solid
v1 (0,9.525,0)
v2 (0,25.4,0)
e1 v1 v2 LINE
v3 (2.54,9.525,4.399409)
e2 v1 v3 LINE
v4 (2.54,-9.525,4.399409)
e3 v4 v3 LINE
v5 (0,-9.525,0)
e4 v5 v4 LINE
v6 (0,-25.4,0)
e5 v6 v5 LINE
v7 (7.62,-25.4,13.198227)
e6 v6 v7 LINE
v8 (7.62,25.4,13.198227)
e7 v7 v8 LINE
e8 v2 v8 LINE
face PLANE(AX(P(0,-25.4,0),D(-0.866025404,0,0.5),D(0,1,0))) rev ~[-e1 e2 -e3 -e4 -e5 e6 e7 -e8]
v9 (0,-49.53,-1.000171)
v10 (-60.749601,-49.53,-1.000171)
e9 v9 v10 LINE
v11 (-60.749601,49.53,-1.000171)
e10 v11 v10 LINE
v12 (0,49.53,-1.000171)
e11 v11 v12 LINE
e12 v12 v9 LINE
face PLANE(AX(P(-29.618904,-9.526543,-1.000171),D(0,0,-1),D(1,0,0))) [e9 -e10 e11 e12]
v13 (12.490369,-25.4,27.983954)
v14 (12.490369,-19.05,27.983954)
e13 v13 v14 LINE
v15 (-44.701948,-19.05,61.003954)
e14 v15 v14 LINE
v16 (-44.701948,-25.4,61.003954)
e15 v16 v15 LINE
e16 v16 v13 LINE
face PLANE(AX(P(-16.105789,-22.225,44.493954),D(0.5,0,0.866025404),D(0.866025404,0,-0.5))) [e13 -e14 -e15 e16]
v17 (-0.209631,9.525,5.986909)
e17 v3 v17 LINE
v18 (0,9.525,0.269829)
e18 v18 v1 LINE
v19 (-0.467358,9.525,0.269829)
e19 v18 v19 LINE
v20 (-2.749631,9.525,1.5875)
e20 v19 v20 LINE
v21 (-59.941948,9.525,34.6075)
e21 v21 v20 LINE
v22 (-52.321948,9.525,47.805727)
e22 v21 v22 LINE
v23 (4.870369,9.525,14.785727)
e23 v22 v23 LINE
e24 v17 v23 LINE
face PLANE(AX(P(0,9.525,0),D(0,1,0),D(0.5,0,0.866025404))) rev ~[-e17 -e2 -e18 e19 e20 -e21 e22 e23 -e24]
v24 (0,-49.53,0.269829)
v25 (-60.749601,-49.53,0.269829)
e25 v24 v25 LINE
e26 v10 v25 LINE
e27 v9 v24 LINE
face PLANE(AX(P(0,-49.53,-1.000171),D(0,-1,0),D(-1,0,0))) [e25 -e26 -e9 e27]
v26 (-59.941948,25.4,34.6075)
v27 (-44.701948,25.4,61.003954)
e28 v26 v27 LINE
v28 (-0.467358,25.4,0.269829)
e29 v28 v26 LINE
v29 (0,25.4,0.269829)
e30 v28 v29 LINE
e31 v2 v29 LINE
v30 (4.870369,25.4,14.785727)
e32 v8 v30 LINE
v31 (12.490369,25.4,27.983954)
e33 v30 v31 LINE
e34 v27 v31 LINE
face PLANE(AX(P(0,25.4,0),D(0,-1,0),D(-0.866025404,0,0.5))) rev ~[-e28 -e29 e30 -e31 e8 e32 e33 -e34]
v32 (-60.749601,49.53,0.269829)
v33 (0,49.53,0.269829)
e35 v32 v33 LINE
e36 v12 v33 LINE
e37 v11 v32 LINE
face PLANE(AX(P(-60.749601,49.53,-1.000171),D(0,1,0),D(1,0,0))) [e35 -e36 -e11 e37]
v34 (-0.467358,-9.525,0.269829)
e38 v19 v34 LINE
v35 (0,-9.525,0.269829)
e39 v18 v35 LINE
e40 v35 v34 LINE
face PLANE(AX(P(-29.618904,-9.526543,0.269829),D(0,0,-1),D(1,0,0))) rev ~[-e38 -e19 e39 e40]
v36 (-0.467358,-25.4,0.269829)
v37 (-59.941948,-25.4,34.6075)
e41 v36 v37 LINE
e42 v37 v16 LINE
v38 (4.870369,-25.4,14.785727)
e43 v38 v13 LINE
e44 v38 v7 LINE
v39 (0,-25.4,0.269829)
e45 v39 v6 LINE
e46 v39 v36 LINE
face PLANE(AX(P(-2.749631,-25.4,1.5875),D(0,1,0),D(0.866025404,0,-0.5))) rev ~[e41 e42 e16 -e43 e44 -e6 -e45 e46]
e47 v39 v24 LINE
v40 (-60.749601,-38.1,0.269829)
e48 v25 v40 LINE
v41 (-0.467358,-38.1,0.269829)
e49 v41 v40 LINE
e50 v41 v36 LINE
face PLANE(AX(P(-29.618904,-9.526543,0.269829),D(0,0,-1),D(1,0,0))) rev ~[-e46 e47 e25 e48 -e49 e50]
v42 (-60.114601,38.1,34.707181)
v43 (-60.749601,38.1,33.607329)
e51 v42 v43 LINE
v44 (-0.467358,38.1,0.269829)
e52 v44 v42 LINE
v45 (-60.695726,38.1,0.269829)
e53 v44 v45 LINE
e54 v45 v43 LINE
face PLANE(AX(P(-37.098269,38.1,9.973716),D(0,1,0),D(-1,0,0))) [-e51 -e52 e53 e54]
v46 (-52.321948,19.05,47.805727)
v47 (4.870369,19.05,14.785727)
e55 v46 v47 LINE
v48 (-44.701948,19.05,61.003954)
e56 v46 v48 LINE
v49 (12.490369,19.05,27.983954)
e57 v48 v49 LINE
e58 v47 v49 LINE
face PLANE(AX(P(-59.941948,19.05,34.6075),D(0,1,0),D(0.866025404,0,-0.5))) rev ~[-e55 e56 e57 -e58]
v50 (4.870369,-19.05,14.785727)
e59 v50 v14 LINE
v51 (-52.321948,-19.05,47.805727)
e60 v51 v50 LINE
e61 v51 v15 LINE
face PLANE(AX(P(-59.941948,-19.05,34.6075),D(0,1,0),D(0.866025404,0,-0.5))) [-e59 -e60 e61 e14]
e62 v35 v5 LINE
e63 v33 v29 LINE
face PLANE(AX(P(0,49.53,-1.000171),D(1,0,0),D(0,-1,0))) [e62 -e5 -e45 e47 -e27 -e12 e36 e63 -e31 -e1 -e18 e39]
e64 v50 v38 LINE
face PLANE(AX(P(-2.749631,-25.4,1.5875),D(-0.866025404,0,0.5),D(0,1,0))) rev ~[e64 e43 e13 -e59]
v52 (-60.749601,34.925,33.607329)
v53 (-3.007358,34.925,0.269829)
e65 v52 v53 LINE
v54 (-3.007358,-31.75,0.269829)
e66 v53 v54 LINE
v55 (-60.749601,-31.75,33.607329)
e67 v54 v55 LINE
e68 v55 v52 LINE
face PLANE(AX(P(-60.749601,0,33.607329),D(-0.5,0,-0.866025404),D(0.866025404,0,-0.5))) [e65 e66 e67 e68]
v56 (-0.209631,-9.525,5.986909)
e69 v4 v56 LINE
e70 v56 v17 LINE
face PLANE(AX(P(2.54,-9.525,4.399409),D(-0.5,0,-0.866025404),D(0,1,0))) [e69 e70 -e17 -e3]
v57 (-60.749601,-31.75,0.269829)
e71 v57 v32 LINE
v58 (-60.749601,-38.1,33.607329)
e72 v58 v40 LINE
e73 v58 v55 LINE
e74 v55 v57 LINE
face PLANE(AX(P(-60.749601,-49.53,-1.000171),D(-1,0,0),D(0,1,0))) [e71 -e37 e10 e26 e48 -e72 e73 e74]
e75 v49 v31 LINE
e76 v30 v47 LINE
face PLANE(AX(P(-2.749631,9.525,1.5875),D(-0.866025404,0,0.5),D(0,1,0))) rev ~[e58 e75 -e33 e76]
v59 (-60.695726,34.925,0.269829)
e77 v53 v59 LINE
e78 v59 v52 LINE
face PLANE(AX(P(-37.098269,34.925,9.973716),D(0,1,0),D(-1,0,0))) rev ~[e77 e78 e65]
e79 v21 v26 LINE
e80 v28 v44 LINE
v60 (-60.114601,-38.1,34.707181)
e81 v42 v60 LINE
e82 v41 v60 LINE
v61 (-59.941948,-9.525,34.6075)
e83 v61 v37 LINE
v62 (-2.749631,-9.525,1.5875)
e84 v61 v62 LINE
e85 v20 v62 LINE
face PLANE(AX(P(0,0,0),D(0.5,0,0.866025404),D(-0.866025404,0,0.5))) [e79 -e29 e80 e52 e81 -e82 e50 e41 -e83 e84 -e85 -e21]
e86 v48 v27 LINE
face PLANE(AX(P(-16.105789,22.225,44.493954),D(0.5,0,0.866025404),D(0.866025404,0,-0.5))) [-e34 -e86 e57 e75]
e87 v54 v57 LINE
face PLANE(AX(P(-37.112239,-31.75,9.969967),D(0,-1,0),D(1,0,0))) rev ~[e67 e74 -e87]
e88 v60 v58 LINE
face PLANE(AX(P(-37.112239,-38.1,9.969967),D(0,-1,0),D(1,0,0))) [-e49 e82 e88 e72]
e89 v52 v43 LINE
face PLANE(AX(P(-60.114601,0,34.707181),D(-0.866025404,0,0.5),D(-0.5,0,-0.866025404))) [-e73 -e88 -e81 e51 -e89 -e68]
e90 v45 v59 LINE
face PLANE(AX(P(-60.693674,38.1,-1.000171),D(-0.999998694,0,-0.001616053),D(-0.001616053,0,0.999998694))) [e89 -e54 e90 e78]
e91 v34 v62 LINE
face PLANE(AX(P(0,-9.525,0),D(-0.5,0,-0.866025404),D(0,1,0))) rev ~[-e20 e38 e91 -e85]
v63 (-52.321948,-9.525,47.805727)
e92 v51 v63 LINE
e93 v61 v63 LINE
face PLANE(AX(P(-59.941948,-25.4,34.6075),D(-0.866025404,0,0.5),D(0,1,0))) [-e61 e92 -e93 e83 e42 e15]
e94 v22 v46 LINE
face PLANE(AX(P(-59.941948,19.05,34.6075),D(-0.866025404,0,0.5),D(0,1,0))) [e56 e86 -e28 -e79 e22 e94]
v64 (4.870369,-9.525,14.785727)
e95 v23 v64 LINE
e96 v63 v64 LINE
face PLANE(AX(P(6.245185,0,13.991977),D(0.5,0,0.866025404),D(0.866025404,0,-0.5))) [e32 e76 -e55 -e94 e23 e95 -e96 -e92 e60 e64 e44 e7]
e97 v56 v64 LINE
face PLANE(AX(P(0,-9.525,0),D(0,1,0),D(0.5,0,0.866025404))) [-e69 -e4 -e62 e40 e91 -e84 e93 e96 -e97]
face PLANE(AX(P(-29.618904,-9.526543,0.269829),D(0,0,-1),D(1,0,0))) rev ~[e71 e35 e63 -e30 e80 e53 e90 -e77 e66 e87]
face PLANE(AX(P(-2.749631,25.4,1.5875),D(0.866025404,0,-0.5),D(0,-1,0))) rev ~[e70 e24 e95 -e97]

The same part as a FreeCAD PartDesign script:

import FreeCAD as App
import Part
import Sketcher
from FreeCAD import Vector
Q = App.Units.Quantity

doc = App.newDocument("Part")
body = doc.addObject("PartDesign::Body", "Body")

sketch1 = doc.addObject("Sketcher::SketchObject", "Sketch")
body.addObject(sketch1)
sketch1.AttachmentSupport = (doc.XZ_Plane, [""])
sketch1.MapMode = "FlatFace"
sketch1.addGeometry([
    Part.LineSegment(Vector(-0.8, -1, 0), Vector(0, 0, 0)),
    Part.LineSegment(Vector(0, 0, 0), Vector(-60.1, 34.7, 0)),
    Part.LineSegment(Vector(-60.1, 34.7, 0), Vector(-60.7, 33.6, 0)),
    Part.LineSegment(Vector(-60.7, 33.6, 0), Vector(-0.8, -1, 0)),
], False)
sketch1.addConstraint([
    Sketcher.Constraint("Coincident", 0, 2, 1, 1),
    Sketcher.Constraint("Coincident", 1, 2, 2, 1),
    Sketcher.Constraint("Coincident", 2, 2, 3, 1),
    Sketcher.Constraint("Coincident", 3, 2, 0, 1),
    Sketcher.Constraint("Coincident", 0, 2, -1, 1),
    Sketcher.Constraint("Perpendicular", 1, 2),
    Sketcher.Constraint("Perpendicular", 2, 3),
    Sketcher.Constraint("Angle", 1, Q("150 deg")),
    Sketcher.Constraint("Distance", 2, Q("0.05 in")),
    Sketcher.Constraint("Distance", 3, Q("2.725 in")),
    Sketcher.Constraint("DistanceX", 1, 2, -1, 1, Q("60.114601 mm")),
])
pad1 = doc.addObject("PartDesign::Pad", "Pad")
body.addObject(pad1)
pad1.Profile = sketch1
pad1.Length = Q("3 in")
pad1.Midplane = True

sketch2 = doc.addObject("Sketcher::SketchObject", "Sketch001")
body.addObject(sketch2)
sketch2.Placement = App.Placement(Vector(0, 0, 0), App.Rotation(Vector(0.866025404, 0, -0.5), Vector(0, 1, 0), Vector(0.5, 0, 0.866025404), "ZXY"))
sketch2.addGeometry([
    Part.LineSegment(Vector(-69, -10, 0), Vector(-69, -19, 0)),
    Part.LineSegment(Vector(-69, -19, 0), Vector(-3, -19, 0)),
    Part.LineSegment(Vector(-3, -19, 0), Vector(-3, -10, 0)),
    Part.LineSegment(Vector(-3, -10, 0), Vector(-69, -10, 0)),
    Part.LineSegment(Vector(-69, 19, 0), Vector(-69, 10, 0)),
    Part.LineSegment(Vector(-69, 10, 0), Vector(-3, 10, 0)),
    Part.LineSegment(Vector(-3, 10, 0), Vector(-3, 19, 0)),
    Part.LineSegment(Vector(-3, 19, 0), Vector(-69, 19, 0)),
], False)
sketch2.addConstraint([
    Sketcher.Constraint("Coincident", 0, 2, 1, 1),
    Sketcher.Constraint("Coincident", 1, 2, 2, 1),
    Sketcher.Constraint("Coincident", 2, 2, 3, 1),
    Sketcher.Constraint("Coincident", 3, 2, 0, 1),
    Sketcher.Constraint("Coincident", 4, 2, 5, 1),
    Sketcher.Constraint("Coincident", 5, 2, 6, 1),
    Sketcher.Constraint("Coincident", 6, 2, 7, 1),
    Sketcher.Constraint("Coincident", 7, 2, 4, 1),
    Sketcher.Constraint("Vertical", 0),
    Sketcher.Constraint("Horizontal", 1),
    Sketcher.Constraint("Vertical", 2),
    Sketcher.Constraint("Horizontal", 3),
    Sketcher.Constraint("Vertical", 4),
    Sketcher.Constraint("Horizontal", 5),
    Sketcher.Constraint("Vertical", 6),
    Sketcher.Constraint("Horizontal", 7),
    Sketcher.Constraint("Symmetric", 3, 2, 4, 2, -1),
    Sketcher.Constraint("Symmetric", 1, 2, 6, 2, -1),
    Sketcher.Constraint("DistanceX", 1, 1, 1, 2, Q("2.6 in")),
    Sketcher.Constraint("DistanceY", 1, 2, 6, 2, Q("1.5 in")),
    Sketcher.Constraint("DistanceY", 0, 2, 0, 1, Q("0.375 in")),
    Sketcher.Constraint("DistanceX", 0, 2, -1, 1, Q("2.725 in")),
])
pad2 = doc.addObject("PartDesign::Pad", "Pad001")
body.addObject(pad2)
pad2.Profile = sketch2
pad2.Length = Q("0.6 in")

sketch3 = doc.addObject("Sketcher::SketchObject", "Sketch002")
body.addObject(sketch3)
sketch3.Placement = App.Placement(Vector(0, 0, 0), App.Rotation(Vector(0.866025404, 0, -0.5), Vector(0, 1, 0), Vector(0.5, 0, 0.866025404), "ZXY"))
sketch3.addGeometry([
    Part.LineSegment(Vector(-69, -19, 0), Vector(-69, -25, 0)),
    Part.LineSegment(Vector(-69, -25, 0), Vector(-3, -25, 0)),
    Part.LineSegment(Vector(-3, -25, 0), Vector(-3, -19, 0)),
    Part.LineSegment(Vector(-3, -19, 0), Vector(-69, -19, 0)),
    Part.LineSegment(Vector(-69, 25, 0), Vector(-69, 19, 0)),
    Part.LineSegment(Vector(-69, 19, 0), Vector(-3, 19, 0)),
    Part.LineSegment(Vector(-3, 19, 0), Vector(-3, 25, 0)),
    Part.LineSegment(Vector(-3, 25, 0), Vector(-69, 25, 0)),
], False)
sketch3.addConstraint([
    Sketcher.Constraint("Coincident", 0, 2, 1, 1),
    Sketcher.Constraint("Coincident", 1, 2, 2, 1),
    Sketcher.Constraint("Coincident", 2, 2, 3, 1),
    Sketcher.Constraint("Coincident", 3, 2, 0, 1),
    Sketcher.Constraint("Coincident", 4, 2, 5, 1),
    Sketcher.Constraint("Coincident", 5, 2, 6, 1),
    Sketcher.Constraint("Coincident", 6, 2, 7, 1),
    Sketcher.Constraint("Coincident", 7, 2, 4, 1),
    Sketcher.Constraint("Vertical", 0),
    Sketcher.Constraint("Horizontal", 1),
    Sketcher.Constraint("Vertical", 2),
    Sketcher.Constraint("Horizontal", 3),
    Sketcher.Constraint("Vertical", 4),
    Sketcher.Constraint("Horizontal", 5),
    Sketcher.Constraint("Vertical", 6),
    Sketcher.Constraint("Horizontal", 7),
    Sketcher.Constraint("Symmetric", 3, 2, 4, 2, -1),
    Sketcher.Constraint("Symmetric", 1, 2, 6, 2, -1),
    Sketcher.Constraint("DistanceX", 1, 1, 1, 2, Q("2.6 in")),
    Sketcher.Constraint("DistanceY", 0, 2, -1, 1, Q("1 in")),
    Sketcher.Constraint("DistanceY", 0, 2, 0, 1, Q("0.25 in")),
    Sketcher.Constraint("DistanceX", 0, 2, -1, 1, Q("2.725 in")),
])
pad3 = doc.addObject("PartDesign::Pad", "Pad002")
body.addObject(pad3)
pad3.Profile = sketch3
pad3.Length = Q("1.2 in")

sketch4 = doc.addObject("Sketcher::SketchObject", "Sketch003")
body.addObject(sketch4)
sketch4.Placement = App.Placement(Vector(0, 0, 0), App.Rotation(Vector(0.866025404, 0, -0.5), Vector(0, 1, 0), Vector(0.5, 0, 0.866025404), "ZXY"))
sketch4.addGeometry([
    Part.LineSegment(Vector(0, 25.4, 0), Vector(-3.2, 25.4, 0)),
    Part.LineSegment(Vector(-3.2, 25.4, 0), Vector(-3.2, -25.4, 0)),
    Part.LineSegment(Vector(-3.2, -25.4, 0), Vector(0, -25.4, 0)),
    Part.LineSegment(Vector(0, -25.4, 0), Vector(0, 25.4, 0)),
], False)
sketch4.addConstraint([
    Sketcher.Constraint("Coincident", 0, 2, 1, 1),
    Sketcher.Constraint("Coincident", 1, 2, 2, 1),
    Sketcher.Constraint("Coincident", 2, 2, 3, 1),
    Sketcher.Constraint("Coincident", 3, 2, 0, 1),
    Sketcher.Constraint("Horizontal", 0),
    Sketcher.Constraint("Vertical", 1),
    Sketcher.Constraint("Horizontal", 2),
    Sketcher.Constraint("Vertical", 3),
    Sketcher.Constraint("Symmetric", 2, 2, 3, 2, -1, 1),
    Sketcher.Constraint("DistanceY", 1, 2, 1, 1, Q("2 in")),
    Sketcher.Constraint("DistanceX", 0, 2, 0, 1, Q("0.125 in")),
])
pad4 = doc.addObject("PartDesign::Pad", "Pad003")
body.addObject(pad4)
pad4.Profile = sketch4
pad4.Length = Q("0.6 in")

sketch5 = doc.addObject("Sketcher::SketchObject", "Sketch004")
body.addObject(sketch5)
sketch5.Placement = App.Placement(Vector(0, 0, 0), App.Rotation(Vector(0, 1, 0), Vector(0.5, 0, 0.866025404), Vector(0.866025404, 0, -0.5), "ZXY"))
sketch5.addGeometry([
    Part.LineSegment(Vector(-10, 5, 0), Vector(-10, 0, 0)),
    Part.LineSegment(Vector(-10, 0, 0), Vector(10, 0, 0)),
    Part.LineSegment(Vector(10, 0, 0), Vector(10, 5, 0)),
    Part.LineSegment(Vector(10, 5, 0), Vector(-10, 5, 0)),
], False)
sketch5.addConstraint([
    Sketcher.Constraint("Coincident", 0, 2, 1, 1),
    Sketcher.Constraint("Coincident", 1, 2, 2, 1),
    Sketcher.Constraint("Coincident", 2, 2, 3, 1),
    Sketcher.Constraint("Coincident", 3, 2, 0, 1),
    Sketcher.Constraint("Vertical", 0),
    Sketcher.Constraint("Horizontal", 1),
    Sketcher.Constraint("Vertical", 2),
    Sketcher.Constraint("Horizontal", 3),
    Sketcher.Constraint("Symmetric", 0, 2, 1, 2, -1, 1),
    Sketcher.Constraint("DistanceY", 0, 2, 0, 1, Q("0.2 in")),
    Sketcher.Constraint("DistanceX", 1, 1, 1, 2, Q("0.75 in")),
])
pocket1 = doc.addObject("PartDesign::Pocket", "Pocket")
body.addObject(pocket1)
pocket1.Profile = sketch5
pocket1.Length = Q("0.125 in")

sketch6 = doc.addObject("Sketcher::SketchObject", "Sketch005")
body.addObject(sketch6)
sketch6.AttachmentSupport = (doc.XZ_Plane, [""])
sketch6.MapMode = "FlatFace"
sketch6.AttachmentOffset = App.Placement(Vector(0, 0, 1.5 * 25.4), App.Rotation())
sketch6.addGeometry([
    Part.LineSegment(Vector(-61, -1, 0), Vector(-1, -1, 0)),
    Part.LineSegment(Vector(-1, -1, 0), Vector(-61, 34, 0)),
    Part.LineSegment(Vector(-61, 34, 0), Vector(-61, -1, 0)),
], False)
sketch6.addConstraint([
    Sketcher.Constraint("Coincident", 0, 2, 1, 1),
    Sketcher.Constraint("Coincident", 1, 2, 2, 1),
    Sketcher.Constraint("Coincident", 2, 2, 0, 1),
    Sketcher.Constraint("Horizontal", 0),
    Sketcher.Constraint("Vertical", 2),
    Sketcher.Constraint("Angle", 1, Q("150 deg")),
    Sketcher.Constraint("Distance", 1, Q("2.725 in")),
    Sketcher.Constraint("DistanceX", 1, 2, -1, 1, Q("60.749601 mm")),
    Sketcher.Constraint("DistanceY", 0, 2, -1, 1, Q("1.000171 mm")),
])
pad5 = doc.addObject("PartDesign::Pad", "Pad004")
body.addObject(pad5)
pad5.Profile = sketch6
pad5.Length = Q("0.25 in")
pad5.Reversed = True

sketch7 = doc.addObject("Sketcher::SketchObject", "Sketch006")
body.addObject(sketch7)
sketch7.AttachmentSupport = (doc.XZ_Plane, [""])
sketch7.MapMode = "FlatFace"
sketch7.AttachmentOffset = App.Placement(Vector(0, 0, -1.5 * 25.4), App.Rotation())
sketch7.addGeometry([
    Part.LineSegment(Vector(-61, 34, 0), Vector(-1, -1, 0)),
    Part.LineSegment(Vector(-1, -1, 0), Vector(-61, -1, 0)),
    Part.LineSegment(Vector(-61, -1, 0), Vector(-61, 34, 0)),
], False)
sketch7.addConstraint([
    Sketcher.Constraint("Coincident", 0, 2, 1, 1),
    Sketcher.Constraint("Coincident", 1, 2, 2, 1),
    Sketcher.Constraint("Coincident", 2, 2, 0, 1),
    Sketcher.Constraint("Horizontal", 1),
    Sketcher.Constraint("Angle", 0, Q("-30 deg")),
    Sketcher.Constraint("Distance", 0, Q("2.725 in")),
    Sketcher.Constraint("DistanceX", 1, 2, 1, 1, Q("59.886021 mm")),
    Sketcher.Constraint("DistanceX", 2, 2, -1, 1, Q("60.749601 mm")),
    Sketcher.Constraint("DistanceY", 0, 2, -1, 1, Q("1.000171 mm")),
])
pad6 = doc.addObject("PartDesign::Pad", "Pad005")
body.addObject(pad6)
pad6.Profile = sketch7
pad6.Length = Q("0.125 in")

sketch8 = doc.addObject("Sketcher::SketchObject", "Sketch007")
body.addObject(sketch8)
sketch8.AttachmentSupport = (doc.XY_Plane, [""])
sketch8.MapMode = "FlatFace"
sketch8.AttachmentOffset = App.Placement(Vector(0, 0, -1.000171), App.Rotation())
sketch8.addGeometry([
    Part.LineSegment(Vector(0, -50, 0), Vector(-61, -50, 0)),
    Part.LineSegment(Vector(-61, -50, 0), Vector(-61, -38, 0)),
    Part.LineSegment(Vector(-61, -38, 0), Vector(-1, -38, 0)),
    Part.LineSegment(Vector(-1, -38, 0), Vector(-1, -32, 0)),
    Part.LineSegment(Vector(-1, -32, 0), Vector(-61, -32, 0)),
    Part.LineSegment(Vector(-61, -32, 0), Vector(-61, 50, 0)),
    Part.LineSegment(Vector(-61, 50, 0), Vector(0, 50, 0)),
    Part.LineSegment(Vector(0, 50, 0), Vector(0, -50, 0)),
], False)
sketch8.addConstraint([
    Sketcher.Constraint("Coincident", 0, 2, 1, 1),
    Sketcher.Constraint("Coincident", 1, 2, 2, 1),
    Sketcher.Constraint("Coincident", 2, 2, 3, 1),
    Sketcher.Constraint("Coincident", 3, 2, 4, 1),
    Sketcher.Constraint("Coincident", 4, 2, 5, 1),
    Sketcher.Constraint("Coincident", 5, 2, 6, 1),
    Sketcher.Constraint("Coincident", 6, 2, 7, 1),
    Sketcher.Constraint("Coincident", 7, 2, 0, 1),
    Sketcher.Constraint("Horizontal", 0),
    Sketcher.Constraint("Vertical", 1),
    Sketcher.Constraint("Horizontal", 2),
    Sketcher.Constraint("Vertical", 3),
    Sketcher.Constraint("Horizontal", 4),
    Sketcher.Constraint("Vertical", 5),
    Sketcher.Constraint("Horizontal", 6),
    Sketcher.Constraint("Vertical", 7),
    Sketcher.Constraint("Symmetric", 6, 2, 7, 2, -1, 1),
    Sketcher.Constraint("Vertical", 1, 2, 4, 2),
    Sketcher.Constraint("DistanceY", 5, 1, 5, 2, Q("3.2 in")),
    Sketcher.Constraint("DistanceY", 7, 2, 7, 1, Q("3.9 in")),
    Sketcher.Constraint("DistanceY", 1, 1, 1, 2, Q("0.45 in")),
    Sketcher.Constraint("DistanceX", 0, 2, 0, 1, Q("60.749601 mm")),
    Sketcher.Constraint("DistanceX", 2, 1, 2, 2, Q("59.941948 mm")),
])
pad7 = doc.addObject("PartDesign::Pad", "Pad006")
body.addObject(pad7)
pad7.Profile = sketch8
pad7.Length = Q("0.05 in")

doc.recompute()
